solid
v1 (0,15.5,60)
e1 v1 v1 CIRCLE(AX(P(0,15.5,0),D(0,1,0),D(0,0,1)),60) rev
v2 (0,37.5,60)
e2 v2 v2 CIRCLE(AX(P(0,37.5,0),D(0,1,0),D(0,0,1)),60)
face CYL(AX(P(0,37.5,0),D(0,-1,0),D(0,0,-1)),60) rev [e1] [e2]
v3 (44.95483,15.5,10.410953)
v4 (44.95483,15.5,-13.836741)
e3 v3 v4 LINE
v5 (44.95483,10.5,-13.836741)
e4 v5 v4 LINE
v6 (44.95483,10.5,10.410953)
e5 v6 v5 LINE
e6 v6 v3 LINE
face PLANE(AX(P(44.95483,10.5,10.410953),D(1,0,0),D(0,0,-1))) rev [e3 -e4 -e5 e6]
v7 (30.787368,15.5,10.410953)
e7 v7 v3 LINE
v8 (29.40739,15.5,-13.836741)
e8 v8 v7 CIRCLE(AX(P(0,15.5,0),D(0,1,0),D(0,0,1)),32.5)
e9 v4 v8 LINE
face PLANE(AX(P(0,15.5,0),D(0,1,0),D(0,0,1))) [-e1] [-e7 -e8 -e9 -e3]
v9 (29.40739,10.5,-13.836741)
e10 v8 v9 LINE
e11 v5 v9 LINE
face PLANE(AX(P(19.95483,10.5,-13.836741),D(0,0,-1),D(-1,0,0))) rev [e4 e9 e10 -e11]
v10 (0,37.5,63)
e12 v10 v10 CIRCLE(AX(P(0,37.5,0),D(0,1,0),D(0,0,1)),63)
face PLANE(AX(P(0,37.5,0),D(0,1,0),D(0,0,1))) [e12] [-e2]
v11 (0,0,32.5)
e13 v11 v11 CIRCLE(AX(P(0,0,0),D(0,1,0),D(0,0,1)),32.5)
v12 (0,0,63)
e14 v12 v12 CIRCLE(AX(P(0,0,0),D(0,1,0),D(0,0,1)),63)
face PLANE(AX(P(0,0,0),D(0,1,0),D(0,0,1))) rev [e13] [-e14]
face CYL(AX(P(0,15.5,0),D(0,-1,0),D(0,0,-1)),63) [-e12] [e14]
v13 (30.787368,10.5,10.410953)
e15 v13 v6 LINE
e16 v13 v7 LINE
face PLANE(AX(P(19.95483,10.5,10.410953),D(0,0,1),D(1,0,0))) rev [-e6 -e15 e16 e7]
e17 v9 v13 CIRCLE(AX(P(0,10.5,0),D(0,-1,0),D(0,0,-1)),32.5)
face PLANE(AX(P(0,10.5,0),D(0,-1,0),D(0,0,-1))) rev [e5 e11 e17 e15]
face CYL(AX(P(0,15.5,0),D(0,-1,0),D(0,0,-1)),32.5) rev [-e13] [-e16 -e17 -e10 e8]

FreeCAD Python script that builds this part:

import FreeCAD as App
import Part
import Sketcher
from FreeCAD import Vector

doc = App.newDocument("Part")
body = doc.addObject("PartDesign::Body", "Body")

sketch1 = doc.addObject("Sketcher::SketchObject", "Sketch")
body.addObject(sketch1)
sketch1.AttachmentSupport = (doc.XZ_Plane, [""])
sketch1.MapMode = "FlatFace"
sketch1.addGeometry([
    Part.Circle(Vector(0, 0, 0), Vector(0, 0, 1), 63),
    Part.Circle(Vector(0, 0, 0), Vector(0, 0, 1), 32),
], False)
sketch1.addConstraint([
    Sketcher.Constraint("Coincident", 0, 3, -1, 1),
    Sketcher.Constraint("Coincident", 1, 3, -1, 1),
    Sketcher.Constraint("Diameter", 0, 126.0),
    Sketcher.Constraint("Diameter", 1, 65.0),
])
pad1 = doc.addObject("PartDesign::Pad", "Pad")
body.addObject(pad1)
pad1.Profile = sketch1
pad1.Length = 15.5
pad1.Reversed = True

sketch2 = doc.addObject("Sketcher::SketchObject", "Sketch001")
body.addObject(sketch2)
sketch2.AttachmentSupport = (doc.XZ_Plane, [""])
sketch2.MapMode = "FlatFace"
sketch2.AttachmentOffset = App.Placement(Vector(0, 0, -15.5), App.Rotation())
sketch2.addGeometry([
    Part.Circle(Vector(0, 0, 0), Vector(0, 0, 1), 63),
    Part.Circle(Vector(0, 0, 0), Vector(0, 0, 1), 60),
], False)
sketch2.addConstraint([
    Sketcher.Constraint("Coincident", 0, 3, -1, 1),
    Sketcher.Constraint("Coincident", 1, 3, -1, 1),
    Sketcher.Constraint("Diameter", 0, 126.0),
    Sketcher.Constraint("Diameter", 1, 120.0),
])
pad2 = doc.addObject("PartDesign::Pad", "Pad001")
body.addObject(pad2)
pad2.Profile = sketch2
pad2.Length = 22
pad2.Reversed = True

sketch3 = doc.addObject("Sketcher::SketchObject", "Sketch002")
body.addObject(sketch3)
sketch3.AttachmentSupport = (doc.XZ_Plane, [""])
sketch3.MapMode = "FlatFace"
sketch3.AttachmentOffset = App.Placement(Vector(0, 0, -15.5), App.Rotation())
sketch3.addGeometry([
    Part.LineSegment(Vector(20, -14, 0), Vector(20, 10, 0)),
    Part.LineSegment(Vector(20, 10, 0), Vector(45, 10, 0)),
    Part.LineSegment(Vector(45, 10, 0), Vector(45, -14, 0)),
    Part.LineSegment(Vector(45, -14, 0), Vector(20, -14, 0)),
], False)
sketch3.addConstraint([
    Sketcher.Constraint("Coincident", 0, 2, 1, 1),
    Sketcher.Constraint("Coincident", 1, 2, 2, 1),
    Sketcher.Constraint("Coincident", 2, 2, 3, 1),
    Sketcher.Constraint("Coincident", 3, 2, 0, 1),
    Sketcher.Constraint("Vertical", 0),
    Sketcher.Constraint("Horizontal", 1),
    Sketcher.Constraint("Vertical", 2),
    Sketcher.Constraint("Horizontal", 3),
    Sketcher.Constraint("DistanceX", 1, 1, 1, 2, 25.0),
    Sketcher.Constraint("DistanceY", 0, 1, 0, 2, 24.247694),
    Sketcher.Constraint("DistanceX", -1, 1, 0, 2, 19.95483),
    Sketcher.Constraint("DistanceY", 2, 2, -1, 1, 13.836741),
])
pocket1 = doc.addObject("PartDesign::Pocket", "Pocket")
body.addObject(pocket1)
pocket1.Profile = sketch3
pocket1.Length = 5
pocket1.Reversed = True

doc.recompute()
